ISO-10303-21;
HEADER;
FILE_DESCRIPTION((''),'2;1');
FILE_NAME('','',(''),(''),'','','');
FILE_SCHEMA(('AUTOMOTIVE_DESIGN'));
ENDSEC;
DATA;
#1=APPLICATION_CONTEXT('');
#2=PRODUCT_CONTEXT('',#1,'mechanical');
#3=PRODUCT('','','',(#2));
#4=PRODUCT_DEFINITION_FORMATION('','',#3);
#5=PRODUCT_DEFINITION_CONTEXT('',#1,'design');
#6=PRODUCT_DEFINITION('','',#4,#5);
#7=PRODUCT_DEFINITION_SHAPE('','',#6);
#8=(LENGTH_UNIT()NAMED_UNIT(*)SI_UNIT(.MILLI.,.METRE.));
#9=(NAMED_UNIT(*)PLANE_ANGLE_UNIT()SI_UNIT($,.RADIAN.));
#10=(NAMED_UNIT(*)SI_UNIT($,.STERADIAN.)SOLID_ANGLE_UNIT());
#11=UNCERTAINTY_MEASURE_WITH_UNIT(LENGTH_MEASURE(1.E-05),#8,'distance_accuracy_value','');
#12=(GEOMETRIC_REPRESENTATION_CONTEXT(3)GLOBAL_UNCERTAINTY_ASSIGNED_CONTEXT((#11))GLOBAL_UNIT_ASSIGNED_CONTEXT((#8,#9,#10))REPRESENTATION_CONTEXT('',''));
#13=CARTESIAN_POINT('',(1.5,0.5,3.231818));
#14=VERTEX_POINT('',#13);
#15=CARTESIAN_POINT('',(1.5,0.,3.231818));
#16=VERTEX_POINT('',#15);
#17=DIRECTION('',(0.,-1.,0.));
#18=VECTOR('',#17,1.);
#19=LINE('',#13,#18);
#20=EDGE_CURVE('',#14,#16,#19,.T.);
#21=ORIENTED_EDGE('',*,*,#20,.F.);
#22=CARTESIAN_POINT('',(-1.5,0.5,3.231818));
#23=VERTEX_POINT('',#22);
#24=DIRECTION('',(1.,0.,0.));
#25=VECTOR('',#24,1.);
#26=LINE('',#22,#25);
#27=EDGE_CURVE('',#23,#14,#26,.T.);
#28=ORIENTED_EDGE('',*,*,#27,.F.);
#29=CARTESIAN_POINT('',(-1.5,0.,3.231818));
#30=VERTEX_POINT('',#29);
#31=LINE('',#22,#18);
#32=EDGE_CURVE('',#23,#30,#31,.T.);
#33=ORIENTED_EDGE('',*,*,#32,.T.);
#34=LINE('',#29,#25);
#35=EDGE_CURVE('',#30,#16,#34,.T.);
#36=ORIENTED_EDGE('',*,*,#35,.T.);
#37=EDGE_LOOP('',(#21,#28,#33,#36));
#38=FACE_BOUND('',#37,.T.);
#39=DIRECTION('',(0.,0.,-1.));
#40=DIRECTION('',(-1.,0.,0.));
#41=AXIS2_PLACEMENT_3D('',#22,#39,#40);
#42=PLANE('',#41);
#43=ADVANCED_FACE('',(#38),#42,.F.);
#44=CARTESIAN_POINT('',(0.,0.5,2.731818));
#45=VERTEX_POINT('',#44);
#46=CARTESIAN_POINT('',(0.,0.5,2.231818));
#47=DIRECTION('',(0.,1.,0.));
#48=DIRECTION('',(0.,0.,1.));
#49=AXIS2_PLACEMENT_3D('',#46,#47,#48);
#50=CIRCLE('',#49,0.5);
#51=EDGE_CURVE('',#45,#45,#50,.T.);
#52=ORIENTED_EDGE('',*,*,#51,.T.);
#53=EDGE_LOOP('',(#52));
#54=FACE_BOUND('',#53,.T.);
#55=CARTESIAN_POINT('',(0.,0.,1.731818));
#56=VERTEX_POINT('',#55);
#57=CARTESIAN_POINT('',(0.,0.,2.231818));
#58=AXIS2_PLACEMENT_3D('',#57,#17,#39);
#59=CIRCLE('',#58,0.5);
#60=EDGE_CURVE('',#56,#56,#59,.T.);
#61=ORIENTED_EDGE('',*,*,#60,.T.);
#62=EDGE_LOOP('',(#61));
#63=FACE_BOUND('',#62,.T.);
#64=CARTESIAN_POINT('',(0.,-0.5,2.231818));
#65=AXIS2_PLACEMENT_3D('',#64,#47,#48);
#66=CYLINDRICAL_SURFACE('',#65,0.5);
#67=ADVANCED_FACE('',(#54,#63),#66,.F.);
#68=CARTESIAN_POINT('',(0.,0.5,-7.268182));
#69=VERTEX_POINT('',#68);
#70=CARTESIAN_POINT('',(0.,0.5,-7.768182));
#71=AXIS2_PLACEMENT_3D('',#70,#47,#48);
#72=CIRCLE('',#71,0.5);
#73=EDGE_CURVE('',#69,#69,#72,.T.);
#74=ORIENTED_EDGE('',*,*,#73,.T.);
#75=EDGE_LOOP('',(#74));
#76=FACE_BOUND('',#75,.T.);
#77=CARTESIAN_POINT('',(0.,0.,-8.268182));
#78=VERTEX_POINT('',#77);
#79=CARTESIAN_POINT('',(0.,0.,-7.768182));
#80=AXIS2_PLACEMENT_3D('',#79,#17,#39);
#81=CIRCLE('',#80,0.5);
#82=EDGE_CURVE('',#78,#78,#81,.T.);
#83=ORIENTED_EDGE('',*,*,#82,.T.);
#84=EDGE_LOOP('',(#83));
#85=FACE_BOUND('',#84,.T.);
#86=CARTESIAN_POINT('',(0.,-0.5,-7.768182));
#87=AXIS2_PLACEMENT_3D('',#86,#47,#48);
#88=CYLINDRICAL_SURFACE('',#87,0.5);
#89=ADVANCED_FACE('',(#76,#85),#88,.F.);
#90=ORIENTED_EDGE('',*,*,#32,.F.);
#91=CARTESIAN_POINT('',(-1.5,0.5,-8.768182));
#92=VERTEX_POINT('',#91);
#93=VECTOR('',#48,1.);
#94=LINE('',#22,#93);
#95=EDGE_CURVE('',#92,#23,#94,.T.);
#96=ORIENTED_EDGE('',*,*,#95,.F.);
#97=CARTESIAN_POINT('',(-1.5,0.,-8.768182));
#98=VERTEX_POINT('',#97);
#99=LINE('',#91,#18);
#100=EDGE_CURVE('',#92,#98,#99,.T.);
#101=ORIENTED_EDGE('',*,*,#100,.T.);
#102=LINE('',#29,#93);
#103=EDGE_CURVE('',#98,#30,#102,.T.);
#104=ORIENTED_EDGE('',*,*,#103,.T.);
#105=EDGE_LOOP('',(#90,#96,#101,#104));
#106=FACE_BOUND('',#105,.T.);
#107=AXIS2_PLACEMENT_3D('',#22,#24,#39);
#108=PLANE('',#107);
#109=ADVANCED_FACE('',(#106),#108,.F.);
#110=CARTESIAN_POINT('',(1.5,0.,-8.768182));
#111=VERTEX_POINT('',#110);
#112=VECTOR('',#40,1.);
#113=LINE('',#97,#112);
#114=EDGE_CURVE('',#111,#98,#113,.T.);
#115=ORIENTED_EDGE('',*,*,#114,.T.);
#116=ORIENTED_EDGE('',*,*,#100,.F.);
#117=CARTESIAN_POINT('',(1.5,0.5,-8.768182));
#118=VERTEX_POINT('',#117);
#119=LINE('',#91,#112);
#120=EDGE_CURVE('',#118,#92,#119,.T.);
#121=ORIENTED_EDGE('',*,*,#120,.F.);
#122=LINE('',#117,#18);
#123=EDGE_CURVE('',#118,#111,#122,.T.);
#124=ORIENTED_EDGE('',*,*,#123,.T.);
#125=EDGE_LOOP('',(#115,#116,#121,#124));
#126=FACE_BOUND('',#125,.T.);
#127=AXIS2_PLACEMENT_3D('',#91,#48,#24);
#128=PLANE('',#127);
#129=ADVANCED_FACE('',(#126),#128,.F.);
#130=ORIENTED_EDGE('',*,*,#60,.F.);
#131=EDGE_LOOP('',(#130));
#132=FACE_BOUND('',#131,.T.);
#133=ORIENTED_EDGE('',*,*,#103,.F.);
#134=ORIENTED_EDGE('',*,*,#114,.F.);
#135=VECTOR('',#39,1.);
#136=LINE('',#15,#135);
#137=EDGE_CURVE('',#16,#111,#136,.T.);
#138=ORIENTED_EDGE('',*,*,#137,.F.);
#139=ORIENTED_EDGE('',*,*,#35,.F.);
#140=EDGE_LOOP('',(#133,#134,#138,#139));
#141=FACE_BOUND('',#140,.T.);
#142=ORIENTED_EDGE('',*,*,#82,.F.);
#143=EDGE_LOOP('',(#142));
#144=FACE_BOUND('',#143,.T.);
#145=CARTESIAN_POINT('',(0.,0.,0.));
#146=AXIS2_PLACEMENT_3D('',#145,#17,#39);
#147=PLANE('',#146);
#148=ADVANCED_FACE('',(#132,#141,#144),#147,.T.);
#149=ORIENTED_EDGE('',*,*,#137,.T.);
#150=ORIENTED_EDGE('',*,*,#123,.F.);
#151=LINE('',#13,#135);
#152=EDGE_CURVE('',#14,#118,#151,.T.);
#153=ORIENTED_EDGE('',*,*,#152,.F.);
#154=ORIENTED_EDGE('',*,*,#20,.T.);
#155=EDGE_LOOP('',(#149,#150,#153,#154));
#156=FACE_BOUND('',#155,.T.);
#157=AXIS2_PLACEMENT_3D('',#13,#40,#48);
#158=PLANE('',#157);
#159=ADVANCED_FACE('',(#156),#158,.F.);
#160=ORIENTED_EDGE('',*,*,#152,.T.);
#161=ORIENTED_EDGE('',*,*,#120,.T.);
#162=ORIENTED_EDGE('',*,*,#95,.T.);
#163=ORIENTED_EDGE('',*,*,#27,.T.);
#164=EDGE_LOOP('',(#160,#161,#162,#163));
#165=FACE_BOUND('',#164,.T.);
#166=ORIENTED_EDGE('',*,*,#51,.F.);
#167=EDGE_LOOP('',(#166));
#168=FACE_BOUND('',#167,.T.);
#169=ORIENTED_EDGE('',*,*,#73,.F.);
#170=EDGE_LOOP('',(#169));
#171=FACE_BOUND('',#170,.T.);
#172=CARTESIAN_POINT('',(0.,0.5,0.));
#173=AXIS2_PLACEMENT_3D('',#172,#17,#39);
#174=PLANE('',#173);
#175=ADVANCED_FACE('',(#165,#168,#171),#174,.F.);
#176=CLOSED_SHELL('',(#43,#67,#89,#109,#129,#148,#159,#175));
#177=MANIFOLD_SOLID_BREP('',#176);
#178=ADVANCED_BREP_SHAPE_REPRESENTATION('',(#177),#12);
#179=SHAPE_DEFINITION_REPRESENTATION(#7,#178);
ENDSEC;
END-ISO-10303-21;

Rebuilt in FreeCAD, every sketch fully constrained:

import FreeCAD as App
import Part
import Sketcher
from FreeCAD import Vector
Q = App.Units.Quantity


def add_polygon(sketch, points):
    """Adds a closed chain of lines whose ends are joined by coincident constraints."""
    first, n = sketch.GeometryCount, len(points)
    for a, b in zip(points, points[1:] + points[:1]):
        sketch.addGeometry(Part.LineSegment(App.Vector(*a, 0), App.Vector(*b, 0)), False)
    for i in range(n):
        sketch.addConstraint(Sketcher.Constraint("Coincident", first + i, 2, first + (i + 1) % n, 1))

doc = App.newDocument("Part")
body = doc.addObject("PartDesign::Body", "Body")

sketch1 = doc.addObject("Sketcher::SketchObject", "Sketch")
body.addObject(sketch1)
sketch1.AttachmentSupport = (doc.XZ_Plane, [""])
sketch1.MapMode = "FlatFace"
add_polygon(sketch1, [(-1.5, -8.8), (-1.5, 3.2), (1.5, 3.2), (1.5, -8.8)])
sketch1.addConstraint(Sketcher.Constraint("Vertical", 0))
sketch1.addConstraint(Sketcher.Constraint("Horizontal", 1))
sketch1.addConstraint(Sketcher.Constraint("Vertical", 2))
sketch1.addConstraint(Sketcher.Constraint("Horizontal", 3))
sketch1.addConstraint(Sketcher.Constraint("DistanceX", 1, 1, 1, 2, Q("3 mm")))
sketch1.addConstraint(Sketcher.Constraint("DistanceY", 0, 1, 0, 2, Q("12 mm")))
sketch1.addConstraint(Sketcher.Constraint("DistanceX", 0, 2, -1, 1, Q("1.5 mm")))
sketch1.addConstraint(Sketcher.Constraint("DistanceY", -1, 1, 0, 2, Q("3.231818 mm")))
pad1 = doc.addObject("PartDesign::Pad", "Pad")
body.addObject(pad1)
pad1.Profile = sketch1
pad1.Length = 0.5
pad1.Reversed = True

sketch2 = doc.addObject("Sketcher::SketchObject", "Sketch001")
body.addObject(sketch2)
sketch2.AttachmentSupport = (doc.XZ_Plane, [""])
sketch2.MapMode = "FlatFace"
sketch2.AttachmentOffset = App.Placement(Vector(0, 0, -0.5), App.Rotation())
sketch2.addGeometry(Part.Circle(Vector(0, -7.8, 0), Vector(0, 0, 1), 0.5), False)
sketch2.addGeometry(Part.Circle(Vector(0, 2.2, 0), Vector(0, 0, 1), 0.5), False)
sketch2.addConstraint(Sketcher.Constraint("Equal", 0, 1))
sketch2.addConstraint(Sketcher.Constraint("PointOnObject", 0, 3, -2))
sketch2.addConstraint(Sketcher.Constraint("PointOnObject", 1, 3, -2))
sketch2.addConstraint(Sketcher.Constraint("Diameter", 0, Q("1 mm")))
sketch2.addConstraint(Sketcher.Constraint("DistanceY", 0, 3, 1, 3, Q("10 mm")))
sketch2.addConstraint(Sketcher.Constraint("DistanceY", 0, 3, -1, 1, Q("7.768182 mm")))
pocket1 = doc.addObject("PartDesign::Pocket", "Pocket")
body.addObject(pocket1)
pocket1.Profile = sketch2
pocket1.Length = 1
pocket1.Reversed = True

doc.recompute()
